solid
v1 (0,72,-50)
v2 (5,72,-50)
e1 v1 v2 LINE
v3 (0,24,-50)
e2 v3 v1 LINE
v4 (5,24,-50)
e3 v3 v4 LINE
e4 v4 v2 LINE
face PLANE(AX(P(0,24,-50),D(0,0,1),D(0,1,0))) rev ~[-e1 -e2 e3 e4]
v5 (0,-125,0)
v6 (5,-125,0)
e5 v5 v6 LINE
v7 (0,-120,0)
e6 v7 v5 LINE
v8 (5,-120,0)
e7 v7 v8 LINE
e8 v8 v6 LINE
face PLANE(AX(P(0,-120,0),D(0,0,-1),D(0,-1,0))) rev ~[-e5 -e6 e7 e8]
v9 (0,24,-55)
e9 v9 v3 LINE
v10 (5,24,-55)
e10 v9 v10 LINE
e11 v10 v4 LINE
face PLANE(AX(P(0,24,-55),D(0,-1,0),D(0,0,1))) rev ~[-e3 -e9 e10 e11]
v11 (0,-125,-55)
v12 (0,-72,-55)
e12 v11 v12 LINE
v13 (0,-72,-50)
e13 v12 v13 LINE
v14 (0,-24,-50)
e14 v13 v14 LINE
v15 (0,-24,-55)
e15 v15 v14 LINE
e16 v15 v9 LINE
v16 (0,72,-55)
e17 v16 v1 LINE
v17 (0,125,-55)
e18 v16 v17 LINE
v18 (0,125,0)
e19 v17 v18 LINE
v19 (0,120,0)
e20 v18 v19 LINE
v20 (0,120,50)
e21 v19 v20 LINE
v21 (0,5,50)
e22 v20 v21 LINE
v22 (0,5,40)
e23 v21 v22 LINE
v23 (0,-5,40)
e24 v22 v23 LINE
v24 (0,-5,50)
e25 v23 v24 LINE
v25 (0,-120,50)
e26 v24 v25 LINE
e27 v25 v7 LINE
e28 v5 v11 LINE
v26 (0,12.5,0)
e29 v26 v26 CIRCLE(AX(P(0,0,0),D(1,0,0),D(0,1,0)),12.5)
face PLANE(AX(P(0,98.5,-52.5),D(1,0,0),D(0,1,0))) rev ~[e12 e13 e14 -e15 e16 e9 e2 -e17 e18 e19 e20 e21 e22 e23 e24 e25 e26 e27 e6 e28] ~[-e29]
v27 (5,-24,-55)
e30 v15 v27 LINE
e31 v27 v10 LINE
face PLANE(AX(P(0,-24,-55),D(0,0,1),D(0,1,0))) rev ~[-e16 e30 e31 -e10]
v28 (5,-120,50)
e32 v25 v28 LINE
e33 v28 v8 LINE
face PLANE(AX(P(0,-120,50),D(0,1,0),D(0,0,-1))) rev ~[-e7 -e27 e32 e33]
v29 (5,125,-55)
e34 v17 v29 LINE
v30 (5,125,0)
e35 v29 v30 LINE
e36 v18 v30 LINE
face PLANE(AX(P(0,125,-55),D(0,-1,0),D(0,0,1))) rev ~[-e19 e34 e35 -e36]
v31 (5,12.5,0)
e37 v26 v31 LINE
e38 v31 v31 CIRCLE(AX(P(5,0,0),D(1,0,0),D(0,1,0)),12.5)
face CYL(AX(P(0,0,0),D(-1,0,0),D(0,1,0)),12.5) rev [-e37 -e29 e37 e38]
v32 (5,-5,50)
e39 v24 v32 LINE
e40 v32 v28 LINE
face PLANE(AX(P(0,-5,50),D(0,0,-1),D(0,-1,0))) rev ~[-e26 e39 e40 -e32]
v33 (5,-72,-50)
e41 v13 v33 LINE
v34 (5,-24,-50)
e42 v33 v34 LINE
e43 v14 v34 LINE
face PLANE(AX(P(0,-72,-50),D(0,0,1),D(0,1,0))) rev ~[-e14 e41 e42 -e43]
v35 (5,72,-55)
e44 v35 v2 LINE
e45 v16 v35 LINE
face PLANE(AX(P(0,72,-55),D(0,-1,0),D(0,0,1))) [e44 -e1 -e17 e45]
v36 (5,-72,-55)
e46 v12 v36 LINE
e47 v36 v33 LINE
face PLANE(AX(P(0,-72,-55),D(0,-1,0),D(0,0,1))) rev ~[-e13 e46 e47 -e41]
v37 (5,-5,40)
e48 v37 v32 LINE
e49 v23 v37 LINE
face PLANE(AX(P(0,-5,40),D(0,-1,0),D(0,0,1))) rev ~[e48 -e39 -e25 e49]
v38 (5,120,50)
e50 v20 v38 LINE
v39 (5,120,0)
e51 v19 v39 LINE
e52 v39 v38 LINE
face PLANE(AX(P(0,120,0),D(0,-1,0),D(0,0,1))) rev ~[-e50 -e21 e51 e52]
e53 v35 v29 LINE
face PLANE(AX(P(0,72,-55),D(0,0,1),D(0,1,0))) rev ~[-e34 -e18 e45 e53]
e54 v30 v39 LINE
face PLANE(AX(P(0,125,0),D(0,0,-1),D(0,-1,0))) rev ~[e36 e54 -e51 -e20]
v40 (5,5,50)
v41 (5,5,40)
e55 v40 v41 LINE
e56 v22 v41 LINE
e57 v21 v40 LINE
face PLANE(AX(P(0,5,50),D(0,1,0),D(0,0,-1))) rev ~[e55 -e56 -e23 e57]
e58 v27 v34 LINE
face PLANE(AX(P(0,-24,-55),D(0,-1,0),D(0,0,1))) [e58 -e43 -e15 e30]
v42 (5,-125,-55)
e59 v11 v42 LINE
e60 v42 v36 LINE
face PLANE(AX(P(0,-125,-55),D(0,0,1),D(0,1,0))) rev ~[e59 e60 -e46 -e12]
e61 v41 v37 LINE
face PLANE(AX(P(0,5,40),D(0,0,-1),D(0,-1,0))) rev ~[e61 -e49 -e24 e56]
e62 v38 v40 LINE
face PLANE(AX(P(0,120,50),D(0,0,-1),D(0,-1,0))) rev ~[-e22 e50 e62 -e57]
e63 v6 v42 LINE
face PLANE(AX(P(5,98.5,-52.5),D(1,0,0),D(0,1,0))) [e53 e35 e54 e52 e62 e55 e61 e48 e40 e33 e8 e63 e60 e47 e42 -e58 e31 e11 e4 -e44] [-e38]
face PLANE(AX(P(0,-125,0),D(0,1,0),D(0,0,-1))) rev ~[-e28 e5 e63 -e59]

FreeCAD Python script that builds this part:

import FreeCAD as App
import Part
import Sketcher
from FreeCAD import Vector

doc = App.newDocument("Part")
body = doc.addObject("PartDesign::Body", "Body")

sketch1 = body.newObject("Sketcher::SketchObject", "Sketch")
sketch1.AttachmentSupport = (doc.getObject("YZ_Plane"), [""])
sketch1.MapMode = "FlatFace"
sketch1.addGeometry([
    Part.LineSegment(Vector(72, -50, 0), Vector(72, -55, 0)),
    Part.LineSegment(Vector(72, -55, 0), Vector(125, -55, 0)),
    Part.LineSegment(Vector(125, -55, 0), Vector(125, 0, 0)),
    Part.LineSegment(Vector(125, 0, 0), Vector(120, 0, 0)),
    Part.LineSegment(Vector(120, 0, 0), Vector(120, 50, 0)),
    Part.LineSegment(Vector(120, 50, 0), Vector(5, 50, 0)),
    Part.LineSegment(Vector(5, 50, 0), Vector(5, 40, 0)),
    Part.LineSegment(Vector(5, 40, 0), Vector(-5, 40, 0)),
    Part.LineSegment(Vector(-5, 40, 0), Vector(-5, 50, 0)),
    Part.LineSegment(Vector(-5, 50, 0), Vector(-120, 50, 0)),
    Part.LineSegment(Vector(-120, 50, 0), Vector(-120, 0, 0)),
    Part.LineSegment(Vector(-120, 0, 0), Vector(-125, 0, 0)),
    Part.LineSegment(Vector(-125, 0, 0), Vector(-125, -55, 0)),
    Part.LineSegment(Vector(-125, -55, 0), Vector(-72, -55, 0)),
    Part.LineSegment(Vector(-72, -55, 0), Vector(-72, -50, 0)),
    Part.LineSegment(Vector(-72, -50, 0), Vector(-24, -50, 0)),
    Part.LineSegment(Vector(-24, -50, 0), Vector(-24, -55, 0)),
    Part.LineSegment(Vector(-24, -55, 0), Vector(24, -55, 0)),
    Part.LineSegment(Vector(24, -55, 0), Vector(24, -50, 0)),
    Part.LineSegment(Vector(24, -50, 0), Vector(72, -50, 0)),
    Part.Circle(Vector(0, 0, 0), Vector(0, 0, 1), 12),
], False)
sketch1.addConstraint([
    Sketcher.Constraint("Coincident", 0, 2, 1, 1),
    Sketcher.Constraint("Coincident", 1, 2, 2, 1),
    Sketcher.Constraint("Coincident", 2, 2, 3, 1),
    Sketcher.Constraint("Coincident", 3, 2, 4, 1),
    Sketcher.Constraint("Coincident", 4, 2, 5, 1),
    Sketcher.Constraint("Coincident", 5, 2, 6, 1),
    Sketcher.Constraint("Coincident", 6, 2, 7, 1),
    Sketcher.Constraint("Coincident", 7, 2, 8, 1),
    Sketcher.Constraint("Coincident", 8, 2, 9, 1),
    Sketcher.Constraint("Coincident", 9, 2, 10, 1),
    Sketcher.Constraint("Coincident", 10, 2, 11, 1),
    Sketcher.Constraint("Coincident", 11, 2, 12, 1),
    Sketcher.Constraint("Coincident", 12, 2, 13, 1),
    Sketcher.Constraint("Coincident", 13, 2, 14, 1),
    Sketcher.Constraint("Coincident", 14, 2, 15, 1),
    Sketcher.Constraint("Coincident", 15, 2, 16, 1),
    Sketcher.Constraint("Coincident", 16, 2, 17, 1),
    Sketcher.Constraint("Coincident", 17, 2, 18, 1),
    Sketcher.Constraint("Coincident", 18, 2, 19, 1),
    Sketcher.Constraint("Coincident", 19, 2, 0, 1),
    Sketcher.Constraint("Vertical", 0),
    Sketcher.Constraint("Horizontal", 1),
    Sketcher.Constraint("Vertical", 2),
    Sketcher.Constraint("Horizontal", 3),
    Sketcher.Constraint("Vertical", 4),
    Sketcher.Constraint("Horizontal", 5),
    Sketcher.Constraint("Vertical", 6),
    Sketcher.Constraint("Horizontal", 7),
    Sketcher.Constraint("Vertical", 8),
    Sketcher.Constraint("Horizontal", 9),
    Sketcher.Constraint("Vertical", 10),
    Sketcher.Constraint("Horizontal", 11),
    Sketcher.Constraint("Vertical", 12),
    Sketcher.Constraint("Horizontal", 13),
    Sketcher.Constraint("Vertical", 14),
    Sketcher.Constraint("Horizontal", 15),
    Sketcher.Constraint("Vertical", 16),
    Sketcher.Constraint("Horizontal", 17),
    Sketcher.Constraint("Vertical", 18),
    Sketcher.Constraint("Horizontal", 19),
    Sketcher.Constraint("Coincident", 20, 3, -1, 1),
    Sketcher.Constraint("Symmetric", 3, 2, 10, 2, -1, 1),
    Sketcher.Constraint("Symmetric", 5, 2, 8, 2, -2),
    Sketcher.Constraint("Symmetric", 2, 2, 11, 2, -2),
    Sketcher.Constraint("Symmetric", 0, 2, 13, 2, -2),
    Sketcher.Constraint("Symmetric", 15, 2, 18, 2, -2),
    Sketcher.Constraint("Horizontal", 13, 2, 16, 2),
    Sketcher.Constraint("Equal", 15, 17),
    Sketcher.Constraint("Equal", 11, 0),
    Sketcher.Constraint("Equal", 7, 6),
    Sketcher.Constraint("Diameter", 20, 25.0),
    Sketcher.Constraint("DistanceX", 1, 1, 1, 2, 53.0),
    Sketcher.Constraint("DistanceX", 3, 2, 3, 1, 5.0),
    Sketcher.Constraint("DistanceX", 5, 2, 5, 1, 115.0),
    Sketcher.Constraint("DistanceX", 7, 2, 7, 1, 10.0),
    Sketcher.Constraint("DistanceY", 2, 1, 2, 2, 55.0),
    Sketcher.Constraint("DistanceY", 4, 1, 4, 2, 50.0),
])
pad1 = body.newObject("PartDesign::Pad", "Pad")
pad1.Profile = sketch1
pad1.Length = 5

doc.recompute()
